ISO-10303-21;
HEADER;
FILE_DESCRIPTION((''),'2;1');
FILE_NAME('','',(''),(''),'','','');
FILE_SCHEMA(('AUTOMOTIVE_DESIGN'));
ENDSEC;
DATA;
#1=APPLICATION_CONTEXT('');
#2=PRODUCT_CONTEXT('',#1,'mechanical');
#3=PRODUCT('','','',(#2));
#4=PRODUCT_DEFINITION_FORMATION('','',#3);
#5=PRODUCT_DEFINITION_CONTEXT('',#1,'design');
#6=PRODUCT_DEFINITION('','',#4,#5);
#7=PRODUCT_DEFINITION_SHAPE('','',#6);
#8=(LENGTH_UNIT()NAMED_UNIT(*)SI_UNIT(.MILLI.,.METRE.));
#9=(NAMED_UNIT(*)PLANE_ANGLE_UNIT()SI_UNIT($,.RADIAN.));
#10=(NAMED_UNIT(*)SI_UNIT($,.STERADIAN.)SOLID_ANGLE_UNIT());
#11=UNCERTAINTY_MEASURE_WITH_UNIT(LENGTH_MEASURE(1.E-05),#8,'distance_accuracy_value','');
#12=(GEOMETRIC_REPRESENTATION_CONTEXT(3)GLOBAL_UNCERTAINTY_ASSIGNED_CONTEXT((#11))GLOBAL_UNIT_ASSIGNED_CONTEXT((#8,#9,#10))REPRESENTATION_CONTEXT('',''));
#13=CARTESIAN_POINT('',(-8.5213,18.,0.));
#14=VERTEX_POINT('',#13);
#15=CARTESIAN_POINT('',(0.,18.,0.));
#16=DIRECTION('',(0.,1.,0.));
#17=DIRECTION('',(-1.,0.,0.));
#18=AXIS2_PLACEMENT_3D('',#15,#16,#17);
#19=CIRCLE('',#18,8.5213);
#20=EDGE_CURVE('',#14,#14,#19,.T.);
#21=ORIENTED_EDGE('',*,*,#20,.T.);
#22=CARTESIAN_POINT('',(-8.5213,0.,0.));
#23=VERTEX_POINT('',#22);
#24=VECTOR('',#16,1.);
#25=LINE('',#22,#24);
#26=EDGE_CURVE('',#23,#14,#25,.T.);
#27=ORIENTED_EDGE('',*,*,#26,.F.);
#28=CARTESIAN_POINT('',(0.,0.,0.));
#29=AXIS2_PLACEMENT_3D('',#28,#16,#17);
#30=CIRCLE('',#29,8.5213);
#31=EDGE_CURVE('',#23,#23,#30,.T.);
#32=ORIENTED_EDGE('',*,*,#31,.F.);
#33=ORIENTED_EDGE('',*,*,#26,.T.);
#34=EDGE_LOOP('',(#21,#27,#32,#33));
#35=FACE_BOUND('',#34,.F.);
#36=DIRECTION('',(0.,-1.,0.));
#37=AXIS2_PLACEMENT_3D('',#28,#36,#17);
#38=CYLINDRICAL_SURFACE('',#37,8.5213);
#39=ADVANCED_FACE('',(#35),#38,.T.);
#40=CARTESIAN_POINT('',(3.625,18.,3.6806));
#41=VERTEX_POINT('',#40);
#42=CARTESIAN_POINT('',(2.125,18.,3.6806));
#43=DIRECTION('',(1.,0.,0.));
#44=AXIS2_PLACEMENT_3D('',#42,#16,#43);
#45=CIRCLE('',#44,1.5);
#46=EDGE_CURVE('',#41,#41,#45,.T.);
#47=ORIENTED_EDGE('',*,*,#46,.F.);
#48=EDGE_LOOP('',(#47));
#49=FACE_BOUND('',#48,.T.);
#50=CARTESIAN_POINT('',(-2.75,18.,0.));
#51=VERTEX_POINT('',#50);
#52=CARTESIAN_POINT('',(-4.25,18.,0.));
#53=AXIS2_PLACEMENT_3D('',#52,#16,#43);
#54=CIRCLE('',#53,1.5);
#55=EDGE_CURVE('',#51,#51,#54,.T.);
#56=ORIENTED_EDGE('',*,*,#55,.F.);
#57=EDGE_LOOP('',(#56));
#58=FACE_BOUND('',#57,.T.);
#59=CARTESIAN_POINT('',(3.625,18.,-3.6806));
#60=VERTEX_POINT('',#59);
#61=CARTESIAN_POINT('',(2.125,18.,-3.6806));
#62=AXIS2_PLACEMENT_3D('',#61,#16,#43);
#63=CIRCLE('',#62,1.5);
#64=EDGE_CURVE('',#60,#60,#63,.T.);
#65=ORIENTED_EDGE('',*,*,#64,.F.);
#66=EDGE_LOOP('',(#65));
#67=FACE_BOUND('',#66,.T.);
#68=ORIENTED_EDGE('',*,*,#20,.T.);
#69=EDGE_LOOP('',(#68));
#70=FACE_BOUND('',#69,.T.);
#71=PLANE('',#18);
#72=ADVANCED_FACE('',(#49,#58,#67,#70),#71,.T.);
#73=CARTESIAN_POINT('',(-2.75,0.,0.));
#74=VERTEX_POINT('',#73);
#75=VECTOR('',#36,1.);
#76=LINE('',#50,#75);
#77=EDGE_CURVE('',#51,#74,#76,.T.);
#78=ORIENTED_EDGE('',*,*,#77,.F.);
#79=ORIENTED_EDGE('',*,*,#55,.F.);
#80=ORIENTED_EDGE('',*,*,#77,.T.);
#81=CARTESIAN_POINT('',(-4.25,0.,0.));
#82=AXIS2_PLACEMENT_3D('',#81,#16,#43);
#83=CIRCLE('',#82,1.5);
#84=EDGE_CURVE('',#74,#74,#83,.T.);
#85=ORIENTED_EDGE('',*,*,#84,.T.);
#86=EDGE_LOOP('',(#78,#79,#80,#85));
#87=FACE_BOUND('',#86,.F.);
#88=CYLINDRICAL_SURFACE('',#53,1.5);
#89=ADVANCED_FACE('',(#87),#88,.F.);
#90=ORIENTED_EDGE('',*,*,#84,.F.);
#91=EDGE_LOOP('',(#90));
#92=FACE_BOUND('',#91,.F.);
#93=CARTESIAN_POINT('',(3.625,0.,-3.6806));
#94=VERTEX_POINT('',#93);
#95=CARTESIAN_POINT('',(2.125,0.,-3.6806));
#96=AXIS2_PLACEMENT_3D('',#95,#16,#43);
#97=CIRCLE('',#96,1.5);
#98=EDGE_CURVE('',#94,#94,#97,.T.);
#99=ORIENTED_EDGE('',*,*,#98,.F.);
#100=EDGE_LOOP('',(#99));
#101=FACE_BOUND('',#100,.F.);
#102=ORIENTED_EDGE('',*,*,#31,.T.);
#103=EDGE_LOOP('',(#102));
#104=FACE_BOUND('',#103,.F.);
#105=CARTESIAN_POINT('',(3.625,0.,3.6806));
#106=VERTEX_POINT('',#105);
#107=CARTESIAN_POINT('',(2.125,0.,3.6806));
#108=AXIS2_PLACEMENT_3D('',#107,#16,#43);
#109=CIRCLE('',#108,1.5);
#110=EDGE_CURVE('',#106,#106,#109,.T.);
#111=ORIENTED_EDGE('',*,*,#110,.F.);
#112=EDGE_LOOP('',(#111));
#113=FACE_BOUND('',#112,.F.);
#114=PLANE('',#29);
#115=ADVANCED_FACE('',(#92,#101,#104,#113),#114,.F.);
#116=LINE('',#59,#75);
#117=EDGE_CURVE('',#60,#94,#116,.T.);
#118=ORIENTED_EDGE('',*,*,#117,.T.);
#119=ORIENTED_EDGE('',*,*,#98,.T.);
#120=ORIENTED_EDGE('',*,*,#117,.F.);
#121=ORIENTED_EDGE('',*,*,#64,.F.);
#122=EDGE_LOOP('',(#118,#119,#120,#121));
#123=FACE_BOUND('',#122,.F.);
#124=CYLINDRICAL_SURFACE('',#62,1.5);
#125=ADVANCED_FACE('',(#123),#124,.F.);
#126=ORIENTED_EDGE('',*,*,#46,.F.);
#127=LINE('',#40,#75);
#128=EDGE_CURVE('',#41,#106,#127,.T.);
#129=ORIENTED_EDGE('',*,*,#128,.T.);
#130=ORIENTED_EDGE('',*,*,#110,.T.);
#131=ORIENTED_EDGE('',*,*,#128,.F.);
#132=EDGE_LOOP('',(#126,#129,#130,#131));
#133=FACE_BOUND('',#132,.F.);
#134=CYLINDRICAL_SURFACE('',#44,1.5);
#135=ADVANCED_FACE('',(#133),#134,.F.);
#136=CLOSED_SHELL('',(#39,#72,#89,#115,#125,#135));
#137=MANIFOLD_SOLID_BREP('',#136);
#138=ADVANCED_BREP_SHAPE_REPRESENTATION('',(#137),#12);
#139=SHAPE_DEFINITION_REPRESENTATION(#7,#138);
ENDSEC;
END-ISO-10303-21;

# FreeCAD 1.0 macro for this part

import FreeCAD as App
import Part
import Sketcher
Q = App.Units.Quantity

doc = App.newDocument("Part")
body = doc.addObject("PartDesign::Body", "Body")

# Sketch on XZ plane
sketch1 = body.newObject("Sketcher::SketchObject", "Sketch")
sketch1.AttachmentSupport = (doc.getObject("XZ_Plane"), [""])
sketch1.MapMode = "FlatFace"
sketch1.addGeometry(Part.Circle(App.Vector(0, 0, 0), App.Vector(0, 0, 1), 8.5213), False)
sketch1.addConstraint([
    Sketcher.Constraint("Coincident", 0, 3, -1, 1),
    Sketcher.Constraint("Diameter", 0, Q("17.0426 mm")),
])
pad1 = body.newObject("PartDesign::Pad", "Pad")
pad1.Profile = sketch1
pad1.Length = 18
pad1.Reversed = True

# Sketch on XZ plane
sketch2 = body.newObject("Sketcher::SketchObject", "Sketch001")
sketch2.AttachmentSupport = (doc.getObject("XZ_Plane"), [""])
sketch2.MapMode = "FlatFace"
sketch2.AttachmentOffset = App.Placement(App.Vector(0, 0, -18), App.Rotation())
sketch2.addGeometry([
    Part.Circle(App.Vector(-4.25, 0, 0), App.Vector(0, 0, 1), 1.5),
    Part.Circle(App.Vector(2.125, 3.6806, 0), App.Vector(0, 0, 1), 1.5),
    Part.Circle(App.Vector(2.125, -3.6806, 0), App.Vector(0, 0, 1), 1.5),
], False)
sketch2.addConstraint([
    Sketcher.Constraint("Equal", 0, 1),
    Sketcher.Constraint("Equal", 1, 2),
    Sketcher.Constraint("Symmetric", 1, 3, 2, 3, -1),
    Sketcher.Constraint("PointOnObject", 0, 3, -1),
    Sketcher.Constraint("Diameter", 0, Q("3 mm")),
    Sketcher.Constraint("DistanceX", 0, 3, -1, 1, Q("4.25 mm")),
    Sketcher.Constraint("DistanceX", -1, 1, 1, 3, Q("2.125 mm")),
    Sketcher.Constraint("DistanceY", -1, 1, 1, 3, Q("3.6806 mm")),
])
pocket1 = body.newObject("PartDesign::Pocket", "Pocket")
pocket1.Profile = sketch2
pocket1.Type = "ThroughAll"
pocket1.Reversed = True

doc.recompute()
